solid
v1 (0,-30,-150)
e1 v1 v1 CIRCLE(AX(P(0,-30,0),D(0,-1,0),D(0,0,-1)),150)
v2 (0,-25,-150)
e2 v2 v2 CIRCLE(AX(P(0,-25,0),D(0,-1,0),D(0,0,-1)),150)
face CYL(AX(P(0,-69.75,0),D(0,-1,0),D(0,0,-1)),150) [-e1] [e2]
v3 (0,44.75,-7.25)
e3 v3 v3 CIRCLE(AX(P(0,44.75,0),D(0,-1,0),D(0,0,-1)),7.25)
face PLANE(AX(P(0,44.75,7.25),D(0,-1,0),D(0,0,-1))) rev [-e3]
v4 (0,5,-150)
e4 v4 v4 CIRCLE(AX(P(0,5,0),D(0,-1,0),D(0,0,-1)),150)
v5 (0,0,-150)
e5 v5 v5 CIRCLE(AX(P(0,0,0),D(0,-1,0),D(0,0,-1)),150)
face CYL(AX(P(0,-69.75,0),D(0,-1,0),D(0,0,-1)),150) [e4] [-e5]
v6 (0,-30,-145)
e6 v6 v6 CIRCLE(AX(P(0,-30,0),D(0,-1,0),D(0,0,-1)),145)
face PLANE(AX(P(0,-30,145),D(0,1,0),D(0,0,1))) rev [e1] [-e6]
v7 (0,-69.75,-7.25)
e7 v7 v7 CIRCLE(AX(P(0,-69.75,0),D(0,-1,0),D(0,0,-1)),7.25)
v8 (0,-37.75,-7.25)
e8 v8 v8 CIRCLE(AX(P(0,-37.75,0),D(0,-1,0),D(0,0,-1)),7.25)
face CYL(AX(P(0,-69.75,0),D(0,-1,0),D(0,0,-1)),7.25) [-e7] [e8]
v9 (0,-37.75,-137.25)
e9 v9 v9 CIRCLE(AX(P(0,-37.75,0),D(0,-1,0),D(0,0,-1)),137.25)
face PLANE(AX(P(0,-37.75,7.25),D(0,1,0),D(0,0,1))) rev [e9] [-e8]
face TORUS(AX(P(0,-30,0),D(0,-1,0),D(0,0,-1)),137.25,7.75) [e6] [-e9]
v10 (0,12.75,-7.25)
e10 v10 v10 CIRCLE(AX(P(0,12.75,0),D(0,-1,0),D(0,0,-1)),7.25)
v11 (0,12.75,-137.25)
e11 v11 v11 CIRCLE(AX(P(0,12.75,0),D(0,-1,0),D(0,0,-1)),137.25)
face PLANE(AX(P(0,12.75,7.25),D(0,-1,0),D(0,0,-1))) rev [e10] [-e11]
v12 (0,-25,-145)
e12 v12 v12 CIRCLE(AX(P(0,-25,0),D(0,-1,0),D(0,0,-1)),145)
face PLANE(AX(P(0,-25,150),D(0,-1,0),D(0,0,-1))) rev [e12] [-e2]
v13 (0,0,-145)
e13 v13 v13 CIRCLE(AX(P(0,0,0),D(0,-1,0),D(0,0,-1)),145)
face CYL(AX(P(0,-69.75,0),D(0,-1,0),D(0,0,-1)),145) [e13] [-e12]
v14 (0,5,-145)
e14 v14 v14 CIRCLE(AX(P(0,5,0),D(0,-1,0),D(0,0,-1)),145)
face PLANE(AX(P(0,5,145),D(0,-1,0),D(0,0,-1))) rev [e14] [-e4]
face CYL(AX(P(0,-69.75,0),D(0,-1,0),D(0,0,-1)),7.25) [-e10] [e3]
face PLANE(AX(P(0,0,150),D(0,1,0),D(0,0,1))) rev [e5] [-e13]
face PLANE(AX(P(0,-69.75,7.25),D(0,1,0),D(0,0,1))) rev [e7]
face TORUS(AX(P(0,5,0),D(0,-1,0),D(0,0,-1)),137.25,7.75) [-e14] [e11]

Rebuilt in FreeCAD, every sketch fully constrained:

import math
import FreeCAD as App
import Part
import Sketcher

V = App.Vector

doc = App.newDocument("Part")
body = doc.addObject("PartDesign::Body", "Body")

sketch1 = body.newObject("Sketcher::SketchObject", "Sketch")
sketch1.AttachmentSupport = (doc.getObject("YZ_Plane"), [""])
sketch1.MapMode = "FlatFace"
sketch1.addGeometry(Part.LineSegment(V(45, 7, 0), V(13, 7, 0)), False)
sketch1.addGeometry(Part.LineSegment(V(13, 7, 0), V(13, 137, 0)), False)
sketch1.addGeometry(Part.ArcOfCircle(Part.Circle(V(5, 137, 0), V(0, 0, 1), 8), math.radians(0), math.radians(90)), False)
sketch1.addGeometry(Part.LineSegment(V(5, 145, 0), V(5, 150, 0)), False)
sketch1.addGeometry(Part.LineSegment(V(5, 150, 0), V(0, 150, 0)), False)
sketch1.addGeometry(Part.LineSegment(V(0, 150, 0), V(0, 145, 0)), False)
sketch1.addGeometry(Part.LineSegment(V(0, 145, 0), V(-25, 145, 0)), False)
sketch1.addGeometry(Part.LineSegment(V(-25, 145, 0), V(-25, 150, 0)), False)
sketch1.addGeometry(Part.LineSegment(V(-25, 150, 0), V(-30, 150, 0)), False)
sketch1.addGeometry(Part.LineSegment(V(-30, 150, 0), V(-30, 145, 0)), False)
sketch1.addGeometry(Part.ArcOfCircle(Part.Circle(V(-30, 137, 0), V(0, 0, 1), 8), math.radians(90), math.radians(180)), False)
sketch1.addGeometry(Part.LineSegment(V(-38, 137, 0), V(-38, 7, 0)), False)
sketch1.addGeometry(Part.LineSegment(V(-38, 7, 0), V(-70, 7, 0)), False)
sketch1.addGeometry(Part.LineSegment(V(-70, 7, 0), V(-70, 0, 0)), False)
sketch1.addGeometry(Part.LineSegment(V(-70, 0, 0), V(45, 0, 0)), False)
sketch1.addGeometry(Part.LineSegment(V(45, 0, 0), V(45, 7, 0)), False)
sketch1.addConstraint(Sketcher.Constraint("Coincident", 0, 2, 1, 1))
sketch1.addConstraint(Sketcher.Constraint("Tangent", 1, 2, 2, 1))
sketch1.addConstraint(Sketcher.Constraint("Coincident", 2, 2, 3, 1))
sketch1.addConstraint(Sketcher.Constraint("Coincident", 3, 2, 4, 1))
sketch1.addConstraint(Sketcher.Constraint("Coincident", 4, 2, 5, 1))
sketch1.addConstraint(Sketcher.Constraint("Coincident", 5, 2, 6, 1))
sketch1.addConstraint(Sketcher.Constraint("Coincident", 6, 2, 7, 1))
sketch1.addConstraint(Sketcher.Constraint("Coincident", 7, 2, 8, 1))
sketch1.addConstraint(Sketcher.Constraint("Coincident", 8, 2, 9, 1))
sketch1.addConstraint(Sketcher.Constraint("Coincident", 9, 2, 10, 1))
sketch1.addConstraint(Sketcher.Constraint("Tangent", 10, 2, 11, 1))
sketch1.addConstraint(Sketcher.Constraint("Coincident", 11, 2, 12, 1))
sketch1.addConstraint(Sketcher.Constraint("Coincident", 12, 2, 13, 1))
sketch1.addConstraint(Sketcher.Constraint("Coincident", 13, 2, 14, 1))
sketch1.addConstraint(Sketcher.Constraint("Coincident", 14, 2, 15, 1))
sketch1.addConstraint(Sketcher.Constraint("Coincident", 15, 2, 0, 1))
sketch1.addConstraint(Sketcher.Constraint("Horizontal", 0))
sketch1.addConstraint(Sketcher.Constraint("Vertical", 1))
sketch1.addConstraint(Sketcher.Constraint("Vertical", 3))
sketch1.addConstraint(Sketcher.Constraint("Horizontal", 4))
sketch1.addConstraint(Sketcher.Constraint("Vertical", 5))
sketch1.addConstraint(Sketcher.Constraint("Horizontal", 6))
sketch1.addConstraint(Sketcher.Constraint("Vertical", 7))
sketch1.addConstraint(Sketcher.Constraint("Horizontal", 8))
sketch1.addConstraint(Sketcher.Constraint("Vertical", 9))
sketch1.addConstraint(Sketcher.Constraint("Vertical", 11))
sketch1.addConstraint(Sketcher.Constraint("Horizontal", 12))
sketch1.addConstraint(Sketcher.Constraint("Vertical", 13))
sketch1.addConstraint(Sketcher.Constraint("Horizontal", 14))
sketch1.addConstraint(Sketcher.Constraint("Vertical", 15))
sketch1.addConstraint(Sketcher.Constraint("Equal", 2, 10))
sketch1.addConstraint(Sketcher.Constraint("PointOnObject", 4, 2, -2))
sketch1.addConstraint(Sketcher.Constraint("PointOnObject", 13, 2, -1))
sketch1.addConstraint(Sketcher.Constraint("Horizontal", 2, 3, 10, 3))
sketch1.addConstraint(Sketcher.Constraint("Horizontal", 2, 2, 5, 2))
sketch1.addConstraint(Sketcher.Constraint("Horizontal", 4, 2, 7, 2))
sketch1.addConstraint(Sketcher.Constraint("Horizontal", 0, 2, 11, 2))
sketch1.addConstraint(Sketcher.Constraint("Vertical", 10, 3, 8, 2))
sketch1.addConstraint(Sketcher.Constraint("Equal", 4, 8))
sketch1.addConstraint(Sketcher.Constraint("Equal", 0, 12))
sketch1.addConstraint(Sketcher.Constraint("Equal", 8, 3))
sketch1.addConstraint(Sketcher.Constraint("DistanceX", 0, 2, 0, 1, 32.0))
sketch1.addConstraint(Sketcher.Constraint("DistanceX", 4, 2, 4, 1, 5.0))
sketch1.addConstraint(Sketcher.Constraint("DistanceX", 6, 2, 6, 1, 25.0))
sketch1.addConstraint(Sketcher.Constraint("DistanceY", 1, 1, 1, 2, 130.0))
sketch1.addConstraint(Sketcher.Constraint("Radius", 2, 7.75))
sketch1.addConstraint(Sketcher.Constraint("DistanceX", 14, 1, 14, 2, 114.5))
sketch1.addConstraint(Sketcher.Constraint("DistanceY", -1, 1, 2, 2, 145.0))
revolution = body.newObject("PartDesign::Revolution", "Revolution")
revolution.Profile = sketch1
revolution.ReferenceAxis = (sketch1, ["H_Axis"])
revolution.Angle = 360

doc.recompute()
